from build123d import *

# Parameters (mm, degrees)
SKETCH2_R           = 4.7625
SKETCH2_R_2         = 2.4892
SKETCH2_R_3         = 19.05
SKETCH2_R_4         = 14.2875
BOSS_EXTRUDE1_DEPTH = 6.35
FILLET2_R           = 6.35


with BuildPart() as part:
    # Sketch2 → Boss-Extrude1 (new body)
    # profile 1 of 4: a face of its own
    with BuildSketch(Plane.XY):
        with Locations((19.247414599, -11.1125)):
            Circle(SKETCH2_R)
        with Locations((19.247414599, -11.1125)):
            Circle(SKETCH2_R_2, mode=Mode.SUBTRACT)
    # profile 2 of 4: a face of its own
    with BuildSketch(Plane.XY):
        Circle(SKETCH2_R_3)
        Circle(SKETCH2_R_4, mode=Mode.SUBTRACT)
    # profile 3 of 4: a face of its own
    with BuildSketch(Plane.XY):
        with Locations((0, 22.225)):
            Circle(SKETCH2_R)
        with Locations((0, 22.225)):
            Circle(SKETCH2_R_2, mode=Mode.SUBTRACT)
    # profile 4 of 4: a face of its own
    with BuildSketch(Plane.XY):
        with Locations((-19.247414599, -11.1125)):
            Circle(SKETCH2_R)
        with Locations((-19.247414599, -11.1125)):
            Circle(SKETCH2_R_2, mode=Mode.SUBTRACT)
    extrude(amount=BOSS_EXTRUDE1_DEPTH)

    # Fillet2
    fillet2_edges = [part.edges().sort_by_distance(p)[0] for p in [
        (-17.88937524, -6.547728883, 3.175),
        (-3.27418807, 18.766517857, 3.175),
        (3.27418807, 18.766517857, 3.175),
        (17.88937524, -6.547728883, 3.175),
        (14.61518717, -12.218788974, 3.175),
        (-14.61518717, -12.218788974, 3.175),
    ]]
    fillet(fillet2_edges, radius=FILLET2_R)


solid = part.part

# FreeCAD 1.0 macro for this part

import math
import FreeCAD as App
import Part
import Sketcher

V = App.Vector
Q = App.Units.Quantity


def edges_at(feature, points):
    """Names of the edges that pass closest to the given points."""
    edges = feature.Shape.Edges
    near = lambda p: min(range(len(edges)), key=lambda i: edges[i].distToShape(Part.Vertex(*p))[0])
    return sorted({f"Edge{near(p) + 1}" for p in points})

doc = App.newDocument("Part")
body = doc.addObject("PartDesign::Body", "Body")

sketch1 = body.newObject("Sketcher::SketchObject", "Sketch")
sketch1.AttachmentSupport = (doc.getObject("XY_Plane"), [""])
sketch1.MapMode = "FlatFace"
sketch1.addGeometry([
    Part.ArcOfCircle(Part.Circle(V(19.2, -11.1, 0), V(0, 0, 1), 4.8), math.radians(-167), math.radians(107)),
    Part.ArcOfCircle(Part.Circle(V(0, 0, 0), V(0, 0, 1), 19.1), math.radians(-20), math.radians(80)),
    Part.ArcOfCircle(Part.Circle(V(0, 22.2, 0), V(0, 0, 1), 4.8), math.radians(-47), math.radians(227)),
    Part.ArcOfCircle(Part.Circle(V(0, 0, 0), V(0, 0, 1), 19.1), math.radians(100), math.radians(200)),
    Part.ArcOfCircle(Part.Circle(V(-19.2, -11.1, 0), V(0, 0, 1), 4.8), math.radians(73), math.radians(347)),
    Part.ArcOfCircle(Part.Circle(V(0, 0, 0), V(0, 0, 1), 19.1), math.radians(-140), math.radians(-40)),
    Part.Circle(V(19.2, -11.1, 0), V(0, 0, 1), 2.5),
    Part.Circle(V(0, 0, 0), V(0, 0, 1), 14.3),
    Part.Circle(V(-19.2, -11.1, 0), V(0, 0, 1), 2.5),
    Part.Circle(V(0, 22.2, 0), V(0, 0, 1), 2.5),
], False)
sketch1.addConstraint([
    Sketcher.Constraint("Coincident", 0, 2, 1, 1),
    Sketcher.Constraint("Coincident", 1, 2, 2, 1),
    Sketcher.Constraint("Coincident", 2, 2, 3, 1),
    Sketcher.Constraint("Coincident", 3, 2, 4, 1),
    Sketcher.Constraint("Coincident", 4, 2, 5, 1),
    Sketcher.Constraint("Coincident", 5, 2, 0, 1),
    Sketcher.Constraint("Coincident", 1, 3, -1, 1),
    Sketcher.Constraint("Coincident", 3, 3, -1, 1),
    Sketcher.Constraint("Coincident", 5, 3, -1, 1),
    Sketcher.Constraint("Coincident", 7, 3, -1, 1),
    Sketcher.Constraint("Coincident", 6, 3, 0, 3),
    Sketcher.Constraint("Coincident", 8, 3, 4, 3),
    Sketcher.Constraint("Coincident", 9, 3, 2, 3),
    Sketcher.Constraint("Equal", 0, 2),
    Sketcher.Constraint("Equal", 1, 3),
    Sketcher.Constraint("Equal", 2, 4),
    Sketcher.Constraint("Equal", 3, 5),
    Sketcher.Constraint("Equal", 6, 8),
    Sketcher.Constraint("Equal", 8, 9),
    Sketcher.Constraint("Symmetric", 0, 3, 4, 3, -2),
    Sketcher.Constraint("PointOnObject", 2, 3, -2),
    Sketcher.Constraint("Radius", 1, Q("0.75 in")),
    Sketcher.Constraint("Diameter", 6, Q("0.196 in")),
    Sketcher.Constraint("Diameter", 7, Q("1.125 in")),
    Sketcher.Constraint("Radius", 0, Q("0.1875 in")),
    Sketcher.Constraint("DistanceY", 0, 3, -1, 1, Q("0.4375 in")),
    Sketcher.Constraint("DistanceY", -1, 1, 2, 3, Q("0.875 in")),
    Sketcher.Constraint("DistanceY", 0, 2, -1, 1, Q("6.547729 mm")),
])
pad1 = body.newObject("PartDesign::Pad", "Pad")
pad1.Profile = sketch1
pad1.Length = Q("0.25 in")
doc.recompute()

fillet = body.newObject("PartDesign::Fillet", "Fillet")
fillet.Base = (pad1, edges_at(pad1, [
    (-17.889, -6.548, 3.175),
    (-3.274, 18.767, 3.175),
    (3.274, 18.767, 3.175),
    (17.889, -6.548, 3.175),
    (14.615, -12.219, 3.175),
    (-14.615, -12.219, 3.175),
]))
fillet.Radius = Q("0.25 in")

doc.recompute()
